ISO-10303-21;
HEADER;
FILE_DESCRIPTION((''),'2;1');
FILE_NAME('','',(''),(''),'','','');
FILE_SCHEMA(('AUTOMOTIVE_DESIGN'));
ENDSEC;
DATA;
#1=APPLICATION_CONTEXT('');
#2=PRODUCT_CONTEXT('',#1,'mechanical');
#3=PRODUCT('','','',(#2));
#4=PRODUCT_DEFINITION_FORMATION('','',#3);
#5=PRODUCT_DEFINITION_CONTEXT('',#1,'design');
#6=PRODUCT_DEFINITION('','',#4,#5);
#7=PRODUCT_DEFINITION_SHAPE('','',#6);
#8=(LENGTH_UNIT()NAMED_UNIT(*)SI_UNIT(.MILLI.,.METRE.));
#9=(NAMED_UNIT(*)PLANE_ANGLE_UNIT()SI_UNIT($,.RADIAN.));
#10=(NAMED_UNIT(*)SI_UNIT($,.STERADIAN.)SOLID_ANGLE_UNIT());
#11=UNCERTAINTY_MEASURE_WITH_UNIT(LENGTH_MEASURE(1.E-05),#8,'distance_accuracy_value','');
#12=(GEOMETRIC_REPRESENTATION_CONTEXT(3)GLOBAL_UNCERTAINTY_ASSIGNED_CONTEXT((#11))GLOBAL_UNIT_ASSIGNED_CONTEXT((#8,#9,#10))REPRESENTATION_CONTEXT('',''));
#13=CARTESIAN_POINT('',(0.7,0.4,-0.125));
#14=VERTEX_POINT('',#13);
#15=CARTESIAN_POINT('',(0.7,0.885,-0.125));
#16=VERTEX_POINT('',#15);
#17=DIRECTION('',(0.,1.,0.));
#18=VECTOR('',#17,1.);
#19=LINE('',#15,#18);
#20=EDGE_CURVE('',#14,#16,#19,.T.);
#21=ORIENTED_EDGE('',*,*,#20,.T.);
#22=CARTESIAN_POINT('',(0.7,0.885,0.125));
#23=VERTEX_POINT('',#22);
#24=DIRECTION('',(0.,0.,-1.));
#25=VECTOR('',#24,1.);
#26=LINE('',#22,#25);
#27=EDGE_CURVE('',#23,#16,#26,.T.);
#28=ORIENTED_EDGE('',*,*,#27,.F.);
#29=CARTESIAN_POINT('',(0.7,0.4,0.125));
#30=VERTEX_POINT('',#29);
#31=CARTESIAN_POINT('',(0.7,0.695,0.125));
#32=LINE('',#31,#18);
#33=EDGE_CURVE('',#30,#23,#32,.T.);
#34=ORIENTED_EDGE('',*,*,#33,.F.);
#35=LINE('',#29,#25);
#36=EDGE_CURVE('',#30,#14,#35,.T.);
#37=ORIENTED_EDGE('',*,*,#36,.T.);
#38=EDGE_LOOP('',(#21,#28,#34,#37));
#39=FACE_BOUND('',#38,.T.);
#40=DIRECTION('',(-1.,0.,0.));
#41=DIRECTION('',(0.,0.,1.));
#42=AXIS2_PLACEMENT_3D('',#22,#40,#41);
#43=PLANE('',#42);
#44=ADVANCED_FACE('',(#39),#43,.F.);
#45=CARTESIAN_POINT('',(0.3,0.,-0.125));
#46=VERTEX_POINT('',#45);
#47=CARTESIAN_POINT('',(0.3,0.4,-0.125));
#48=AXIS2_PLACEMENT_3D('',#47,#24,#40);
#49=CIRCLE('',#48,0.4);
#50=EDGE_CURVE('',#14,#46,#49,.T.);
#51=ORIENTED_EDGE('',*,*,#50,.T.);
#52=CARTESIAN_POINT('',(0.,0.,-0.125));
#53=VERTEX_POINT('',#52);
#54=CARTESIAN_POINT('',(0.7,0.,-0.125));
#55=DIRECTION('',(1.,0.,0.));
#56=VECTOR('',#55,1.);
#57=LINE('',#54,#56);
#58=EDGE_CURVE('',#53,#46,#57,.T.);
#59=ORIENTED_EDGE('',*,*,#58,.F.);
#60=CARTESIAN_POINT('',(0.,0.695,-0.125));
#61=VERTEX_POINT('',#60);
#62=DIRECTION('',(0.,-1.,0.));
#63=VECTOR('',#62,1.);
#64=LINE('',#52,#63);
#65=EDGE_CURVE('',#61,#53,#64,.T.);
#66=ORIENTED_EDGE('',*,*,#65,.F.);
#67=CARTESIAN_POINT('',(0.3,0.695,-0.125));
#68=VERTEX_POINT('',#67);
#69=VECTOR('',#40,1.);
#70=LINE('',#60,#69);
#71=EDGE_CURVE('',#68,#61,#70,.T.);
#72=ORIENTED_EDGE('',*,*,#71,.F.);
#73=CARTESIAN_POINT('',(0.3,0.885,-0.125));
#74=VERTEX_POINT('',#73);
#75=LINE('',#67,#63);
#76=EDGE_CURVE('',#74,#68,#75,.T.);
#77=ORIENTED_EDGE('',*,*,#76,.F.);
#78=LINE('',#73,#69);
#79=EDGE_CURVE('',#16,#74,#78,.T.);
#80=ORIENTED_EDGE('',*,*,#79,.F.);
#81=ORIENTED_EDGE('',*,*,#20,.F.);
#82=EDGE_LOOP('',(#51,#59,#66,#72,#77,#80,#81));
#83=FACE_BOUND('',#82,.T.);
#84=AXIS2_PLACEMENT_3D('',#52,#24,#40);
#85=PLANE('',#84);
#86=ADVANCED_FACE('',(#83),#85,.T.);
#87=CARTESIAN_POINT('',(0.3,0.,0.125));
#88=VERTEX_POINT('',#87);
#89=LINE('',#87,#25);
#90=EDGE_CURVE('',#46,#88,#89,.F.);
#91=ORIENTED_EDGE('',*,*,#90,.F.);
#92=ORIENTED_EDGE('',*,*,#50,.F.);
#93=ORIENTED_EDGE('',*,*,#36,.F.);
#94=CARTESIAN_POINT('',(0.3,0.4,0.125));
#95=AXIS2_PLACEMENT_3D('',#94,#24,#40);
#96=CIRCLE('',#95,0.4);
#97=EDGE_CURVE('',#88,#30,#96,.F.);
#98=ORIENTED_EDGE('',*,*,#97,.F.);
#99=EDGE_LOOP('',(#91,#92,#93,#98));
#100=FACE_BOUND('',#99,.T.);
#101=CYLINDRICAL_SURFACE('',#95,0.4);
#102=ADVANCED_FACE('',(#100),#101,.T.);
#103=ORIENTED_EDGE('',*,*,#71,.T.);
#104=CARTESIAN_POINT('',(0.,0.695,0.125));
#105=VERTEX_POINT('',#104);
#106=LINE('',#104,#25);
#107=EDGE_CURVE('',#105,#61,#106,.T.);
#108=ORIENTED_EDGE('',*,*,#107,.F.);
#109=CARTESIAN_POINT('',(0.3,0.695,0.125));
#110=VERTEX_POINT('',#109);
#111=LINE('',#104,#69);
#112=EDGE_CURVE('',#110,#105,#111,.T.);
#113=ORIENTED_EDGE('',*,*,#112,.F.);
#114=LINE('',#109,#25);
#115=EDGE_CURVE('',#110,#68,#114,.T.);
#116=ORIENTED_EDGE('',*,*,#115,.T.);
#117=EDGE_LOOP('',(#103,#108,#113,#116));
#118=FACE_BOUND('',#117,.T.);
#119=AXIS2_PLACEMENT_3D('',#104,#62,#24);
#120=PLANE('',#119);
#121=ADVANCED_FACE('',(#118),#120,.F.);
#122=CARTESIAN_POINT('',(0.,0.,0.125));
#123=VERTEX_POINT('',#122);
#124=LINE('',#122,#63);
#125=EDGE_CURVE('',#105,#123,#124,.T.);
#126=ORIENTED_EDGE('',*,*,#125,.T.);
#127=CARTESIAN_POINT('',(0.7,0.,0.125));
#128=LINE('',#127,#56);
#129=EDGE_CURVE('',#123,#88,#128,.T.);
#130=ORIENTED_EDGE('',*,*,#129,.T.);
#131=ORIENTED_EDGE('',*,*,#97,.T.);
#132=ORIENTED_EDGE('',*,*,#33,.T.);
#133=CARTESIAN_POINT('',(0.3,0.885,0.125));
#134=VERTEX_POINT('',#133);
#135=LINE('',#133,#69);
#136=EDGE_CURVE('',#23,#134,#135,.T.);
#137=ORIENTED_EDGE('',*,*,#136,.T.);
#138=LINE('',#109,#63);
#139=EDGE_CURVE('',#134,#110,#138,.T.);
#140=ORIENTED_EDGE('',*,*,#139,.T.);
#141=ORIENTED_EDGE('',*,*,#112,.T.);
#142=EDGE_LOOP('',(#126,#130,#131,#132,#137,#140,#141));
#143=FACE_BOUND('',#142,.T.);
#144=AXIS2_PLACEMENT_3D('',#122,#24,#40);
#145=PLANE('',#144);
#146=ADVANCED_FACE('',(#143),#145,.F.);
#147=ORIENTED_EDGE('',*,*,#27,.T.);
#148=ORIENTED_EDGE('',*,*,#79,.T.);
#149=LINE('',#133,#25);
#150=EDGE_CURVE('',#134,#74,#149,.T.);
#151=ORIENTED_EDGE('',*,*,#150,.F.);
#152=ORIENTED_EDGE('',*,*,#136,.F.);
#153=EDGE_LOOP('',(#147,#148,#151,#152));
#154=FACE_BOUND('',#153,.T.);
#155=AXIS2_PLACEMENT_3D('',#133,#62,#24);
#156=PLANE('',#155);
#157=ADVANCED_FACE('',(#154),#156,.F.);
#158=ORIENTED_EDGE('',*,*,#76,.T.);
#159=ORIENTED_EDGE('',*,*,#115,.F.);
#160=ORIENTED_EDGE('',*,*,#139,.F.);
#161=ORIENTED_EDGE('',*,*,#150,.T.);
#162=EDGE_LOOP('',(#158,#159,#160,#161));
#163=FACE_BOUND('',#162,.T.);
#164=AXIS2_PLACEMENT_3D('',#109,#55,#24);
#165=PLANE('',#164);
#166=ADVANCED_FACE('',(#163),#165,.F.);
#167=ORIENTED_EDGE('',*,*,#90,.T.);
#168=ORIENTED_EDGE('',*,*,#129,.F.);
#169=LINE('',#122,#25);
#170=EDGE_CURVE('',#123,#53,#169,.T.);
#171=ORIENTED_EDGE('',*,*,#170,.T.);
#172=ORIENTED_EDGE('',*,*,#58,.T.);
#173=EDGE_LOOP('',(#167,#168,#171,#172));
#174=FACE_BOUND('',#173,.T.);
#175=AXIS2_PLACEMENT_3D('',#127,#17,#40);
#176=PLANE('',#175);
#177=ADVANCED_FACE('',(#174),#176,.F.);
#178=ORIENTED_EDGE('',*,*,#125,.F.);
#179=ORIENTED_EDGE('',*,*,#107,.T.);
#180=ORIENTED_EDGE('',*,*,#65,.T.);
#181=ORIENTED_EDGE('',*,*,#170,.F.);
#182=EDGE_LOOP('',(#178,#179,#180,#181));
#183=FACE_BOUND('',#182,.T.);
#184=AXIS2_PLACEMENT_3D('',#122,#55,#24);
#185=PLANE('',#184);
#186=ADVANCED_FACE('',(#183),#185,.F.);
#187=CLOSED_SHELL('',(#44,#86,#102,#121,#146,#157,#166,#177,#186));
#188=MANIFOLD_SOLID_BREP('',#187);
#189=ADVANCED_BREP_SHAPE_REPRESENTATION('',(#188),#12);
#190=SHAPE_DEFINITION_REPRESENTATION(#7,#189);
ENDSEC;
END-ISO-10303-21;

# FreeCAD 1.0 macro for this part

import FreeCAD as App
import Part
import Sketcher

V = App.Vector
Q = App.Units.Quantity


def edges_at(feature, points):
    """Names of the edges that pass closest to the given points."""
    edges = feature.Shape.Edges
    near = lambda p: min(range(len(edges)), key=lambda i: edges[i].distToShape(Part.Vertex(*p))[0])
    return sorted({f"Edge{near(p) + 1}" for p in points})

doc = App.newDocument("Part")
params = doc.addObject("Spreadsheet::Sheet", "Params")
for row, (alias, value) in enumerate([
    ("sketch1_width", "0.7 mm"),
    ("sketch1_width2", "0.4 mm"),
    ("sketch1_height", "0.19 mm"),
    ("pad1_length", "0.25 mm"),
    ("fillet_radius", "0.4 mm"),
], start=1):
    params.set(f"A{row}", alias)
    params.set(f"B{row}", "=" + value)
    params.setAlias(f"B{row}", alias)

body = doc.addObject("PartDesign::Body", "Body")

sketch1 = body.newObject("Sketcher::SketchObject", "Sketch")
sketch1.AttachmentSupport = (doc.getObject("XY_Plane"), [""])
sketch1.MapMode = "FlatFace"
sketch1.addGeometry([
    Part.LineSegment(V(0, 0.69, 0), V(0, 0, 0)),
    Part.LineSegment(V(0, 0, 0), V(0.7, 0, 0)),
    Part.LineSegment(V(0.7, 0, 0), V(0.7, 0.89, 0)),
    Part.LineSegment(V(0.7, 0.89, 0), V(0.3, 0.89, 0)),
    Part.LineSegment(V(0.3, 0.89, 0), V(0.3, 0.69, 0)),
    Part.LineSegment(V(0.3, 0.69, 0), V(0, 0.69, 0)),
], False)
sketch1.addConstraint([
    Sketcher.Constraint("Coincident", 0, 2, 1, 1),
    Sketcher.Constraint("Coincident", 1, 2, 2, 1),
    Sketcher.Constraint("Coincident", 2, 2, 3, 1),
    Sketcher.Constraint("Coincident", 3, 2, 4, 1),
    Sketcher.Constraint("Coincident", 4, 2, 5, 1),
    Sketcher.Constraint("Coincident", 5, 2, 0, 1),
    Sketcher.Constraint("Vertical", 0),
    Sketcher.Constraint("Horizontal", 1),
    Sketcher.Constraint("Vertical", 2),
    Sketcher.Constraint("Horizontal", 3),
    Sketcher.Constraint("Vertical", 4),
    Sketcher.Constraint("Horizontal", 5),
    Sketcher.Constraint("Coincident", 0, 2, -1, 1),
    Sketcher.Constraint("DistanceX", 1, 1, 1, 2, Q("0.7 mm")),
    Sketcher.Constraint("DistanceX", 3, 2, 3, 1, Q("0.4 mm")),
    Sketcher.Constraint("DistanceY", 4, 2, 4, 1, Q("0.19 mm")),
    Sketcher.Constraint("DistanceY", 0, 2, 0, 1, Q("0.695 mm")),
])
sketch1.setExpression("Constraints[13]", "Params.sketch1_width")
sketch1.setExpression("Constraints[14]", "Params.sketch1_width2")
sketch1.setExpression("Constraints[15]", "Params.sketch1_height")
pad1 = body.newObject("PartDesign::Pad", "Pad")
pad1.Profile = sketch1
pad1.setExpression("Length", "Params.pad1_length")
pad1.Midplane = True
doc.recompute()

fillet = body.newObject("PartDesign::Fillet", "Fillet")
fillet.Base = (pad1, edges_at(pad1, [(0.7, 0, 0)]))
fillet.setExpression("Radius", "Params.fillet_radius")

doc.recompute()
